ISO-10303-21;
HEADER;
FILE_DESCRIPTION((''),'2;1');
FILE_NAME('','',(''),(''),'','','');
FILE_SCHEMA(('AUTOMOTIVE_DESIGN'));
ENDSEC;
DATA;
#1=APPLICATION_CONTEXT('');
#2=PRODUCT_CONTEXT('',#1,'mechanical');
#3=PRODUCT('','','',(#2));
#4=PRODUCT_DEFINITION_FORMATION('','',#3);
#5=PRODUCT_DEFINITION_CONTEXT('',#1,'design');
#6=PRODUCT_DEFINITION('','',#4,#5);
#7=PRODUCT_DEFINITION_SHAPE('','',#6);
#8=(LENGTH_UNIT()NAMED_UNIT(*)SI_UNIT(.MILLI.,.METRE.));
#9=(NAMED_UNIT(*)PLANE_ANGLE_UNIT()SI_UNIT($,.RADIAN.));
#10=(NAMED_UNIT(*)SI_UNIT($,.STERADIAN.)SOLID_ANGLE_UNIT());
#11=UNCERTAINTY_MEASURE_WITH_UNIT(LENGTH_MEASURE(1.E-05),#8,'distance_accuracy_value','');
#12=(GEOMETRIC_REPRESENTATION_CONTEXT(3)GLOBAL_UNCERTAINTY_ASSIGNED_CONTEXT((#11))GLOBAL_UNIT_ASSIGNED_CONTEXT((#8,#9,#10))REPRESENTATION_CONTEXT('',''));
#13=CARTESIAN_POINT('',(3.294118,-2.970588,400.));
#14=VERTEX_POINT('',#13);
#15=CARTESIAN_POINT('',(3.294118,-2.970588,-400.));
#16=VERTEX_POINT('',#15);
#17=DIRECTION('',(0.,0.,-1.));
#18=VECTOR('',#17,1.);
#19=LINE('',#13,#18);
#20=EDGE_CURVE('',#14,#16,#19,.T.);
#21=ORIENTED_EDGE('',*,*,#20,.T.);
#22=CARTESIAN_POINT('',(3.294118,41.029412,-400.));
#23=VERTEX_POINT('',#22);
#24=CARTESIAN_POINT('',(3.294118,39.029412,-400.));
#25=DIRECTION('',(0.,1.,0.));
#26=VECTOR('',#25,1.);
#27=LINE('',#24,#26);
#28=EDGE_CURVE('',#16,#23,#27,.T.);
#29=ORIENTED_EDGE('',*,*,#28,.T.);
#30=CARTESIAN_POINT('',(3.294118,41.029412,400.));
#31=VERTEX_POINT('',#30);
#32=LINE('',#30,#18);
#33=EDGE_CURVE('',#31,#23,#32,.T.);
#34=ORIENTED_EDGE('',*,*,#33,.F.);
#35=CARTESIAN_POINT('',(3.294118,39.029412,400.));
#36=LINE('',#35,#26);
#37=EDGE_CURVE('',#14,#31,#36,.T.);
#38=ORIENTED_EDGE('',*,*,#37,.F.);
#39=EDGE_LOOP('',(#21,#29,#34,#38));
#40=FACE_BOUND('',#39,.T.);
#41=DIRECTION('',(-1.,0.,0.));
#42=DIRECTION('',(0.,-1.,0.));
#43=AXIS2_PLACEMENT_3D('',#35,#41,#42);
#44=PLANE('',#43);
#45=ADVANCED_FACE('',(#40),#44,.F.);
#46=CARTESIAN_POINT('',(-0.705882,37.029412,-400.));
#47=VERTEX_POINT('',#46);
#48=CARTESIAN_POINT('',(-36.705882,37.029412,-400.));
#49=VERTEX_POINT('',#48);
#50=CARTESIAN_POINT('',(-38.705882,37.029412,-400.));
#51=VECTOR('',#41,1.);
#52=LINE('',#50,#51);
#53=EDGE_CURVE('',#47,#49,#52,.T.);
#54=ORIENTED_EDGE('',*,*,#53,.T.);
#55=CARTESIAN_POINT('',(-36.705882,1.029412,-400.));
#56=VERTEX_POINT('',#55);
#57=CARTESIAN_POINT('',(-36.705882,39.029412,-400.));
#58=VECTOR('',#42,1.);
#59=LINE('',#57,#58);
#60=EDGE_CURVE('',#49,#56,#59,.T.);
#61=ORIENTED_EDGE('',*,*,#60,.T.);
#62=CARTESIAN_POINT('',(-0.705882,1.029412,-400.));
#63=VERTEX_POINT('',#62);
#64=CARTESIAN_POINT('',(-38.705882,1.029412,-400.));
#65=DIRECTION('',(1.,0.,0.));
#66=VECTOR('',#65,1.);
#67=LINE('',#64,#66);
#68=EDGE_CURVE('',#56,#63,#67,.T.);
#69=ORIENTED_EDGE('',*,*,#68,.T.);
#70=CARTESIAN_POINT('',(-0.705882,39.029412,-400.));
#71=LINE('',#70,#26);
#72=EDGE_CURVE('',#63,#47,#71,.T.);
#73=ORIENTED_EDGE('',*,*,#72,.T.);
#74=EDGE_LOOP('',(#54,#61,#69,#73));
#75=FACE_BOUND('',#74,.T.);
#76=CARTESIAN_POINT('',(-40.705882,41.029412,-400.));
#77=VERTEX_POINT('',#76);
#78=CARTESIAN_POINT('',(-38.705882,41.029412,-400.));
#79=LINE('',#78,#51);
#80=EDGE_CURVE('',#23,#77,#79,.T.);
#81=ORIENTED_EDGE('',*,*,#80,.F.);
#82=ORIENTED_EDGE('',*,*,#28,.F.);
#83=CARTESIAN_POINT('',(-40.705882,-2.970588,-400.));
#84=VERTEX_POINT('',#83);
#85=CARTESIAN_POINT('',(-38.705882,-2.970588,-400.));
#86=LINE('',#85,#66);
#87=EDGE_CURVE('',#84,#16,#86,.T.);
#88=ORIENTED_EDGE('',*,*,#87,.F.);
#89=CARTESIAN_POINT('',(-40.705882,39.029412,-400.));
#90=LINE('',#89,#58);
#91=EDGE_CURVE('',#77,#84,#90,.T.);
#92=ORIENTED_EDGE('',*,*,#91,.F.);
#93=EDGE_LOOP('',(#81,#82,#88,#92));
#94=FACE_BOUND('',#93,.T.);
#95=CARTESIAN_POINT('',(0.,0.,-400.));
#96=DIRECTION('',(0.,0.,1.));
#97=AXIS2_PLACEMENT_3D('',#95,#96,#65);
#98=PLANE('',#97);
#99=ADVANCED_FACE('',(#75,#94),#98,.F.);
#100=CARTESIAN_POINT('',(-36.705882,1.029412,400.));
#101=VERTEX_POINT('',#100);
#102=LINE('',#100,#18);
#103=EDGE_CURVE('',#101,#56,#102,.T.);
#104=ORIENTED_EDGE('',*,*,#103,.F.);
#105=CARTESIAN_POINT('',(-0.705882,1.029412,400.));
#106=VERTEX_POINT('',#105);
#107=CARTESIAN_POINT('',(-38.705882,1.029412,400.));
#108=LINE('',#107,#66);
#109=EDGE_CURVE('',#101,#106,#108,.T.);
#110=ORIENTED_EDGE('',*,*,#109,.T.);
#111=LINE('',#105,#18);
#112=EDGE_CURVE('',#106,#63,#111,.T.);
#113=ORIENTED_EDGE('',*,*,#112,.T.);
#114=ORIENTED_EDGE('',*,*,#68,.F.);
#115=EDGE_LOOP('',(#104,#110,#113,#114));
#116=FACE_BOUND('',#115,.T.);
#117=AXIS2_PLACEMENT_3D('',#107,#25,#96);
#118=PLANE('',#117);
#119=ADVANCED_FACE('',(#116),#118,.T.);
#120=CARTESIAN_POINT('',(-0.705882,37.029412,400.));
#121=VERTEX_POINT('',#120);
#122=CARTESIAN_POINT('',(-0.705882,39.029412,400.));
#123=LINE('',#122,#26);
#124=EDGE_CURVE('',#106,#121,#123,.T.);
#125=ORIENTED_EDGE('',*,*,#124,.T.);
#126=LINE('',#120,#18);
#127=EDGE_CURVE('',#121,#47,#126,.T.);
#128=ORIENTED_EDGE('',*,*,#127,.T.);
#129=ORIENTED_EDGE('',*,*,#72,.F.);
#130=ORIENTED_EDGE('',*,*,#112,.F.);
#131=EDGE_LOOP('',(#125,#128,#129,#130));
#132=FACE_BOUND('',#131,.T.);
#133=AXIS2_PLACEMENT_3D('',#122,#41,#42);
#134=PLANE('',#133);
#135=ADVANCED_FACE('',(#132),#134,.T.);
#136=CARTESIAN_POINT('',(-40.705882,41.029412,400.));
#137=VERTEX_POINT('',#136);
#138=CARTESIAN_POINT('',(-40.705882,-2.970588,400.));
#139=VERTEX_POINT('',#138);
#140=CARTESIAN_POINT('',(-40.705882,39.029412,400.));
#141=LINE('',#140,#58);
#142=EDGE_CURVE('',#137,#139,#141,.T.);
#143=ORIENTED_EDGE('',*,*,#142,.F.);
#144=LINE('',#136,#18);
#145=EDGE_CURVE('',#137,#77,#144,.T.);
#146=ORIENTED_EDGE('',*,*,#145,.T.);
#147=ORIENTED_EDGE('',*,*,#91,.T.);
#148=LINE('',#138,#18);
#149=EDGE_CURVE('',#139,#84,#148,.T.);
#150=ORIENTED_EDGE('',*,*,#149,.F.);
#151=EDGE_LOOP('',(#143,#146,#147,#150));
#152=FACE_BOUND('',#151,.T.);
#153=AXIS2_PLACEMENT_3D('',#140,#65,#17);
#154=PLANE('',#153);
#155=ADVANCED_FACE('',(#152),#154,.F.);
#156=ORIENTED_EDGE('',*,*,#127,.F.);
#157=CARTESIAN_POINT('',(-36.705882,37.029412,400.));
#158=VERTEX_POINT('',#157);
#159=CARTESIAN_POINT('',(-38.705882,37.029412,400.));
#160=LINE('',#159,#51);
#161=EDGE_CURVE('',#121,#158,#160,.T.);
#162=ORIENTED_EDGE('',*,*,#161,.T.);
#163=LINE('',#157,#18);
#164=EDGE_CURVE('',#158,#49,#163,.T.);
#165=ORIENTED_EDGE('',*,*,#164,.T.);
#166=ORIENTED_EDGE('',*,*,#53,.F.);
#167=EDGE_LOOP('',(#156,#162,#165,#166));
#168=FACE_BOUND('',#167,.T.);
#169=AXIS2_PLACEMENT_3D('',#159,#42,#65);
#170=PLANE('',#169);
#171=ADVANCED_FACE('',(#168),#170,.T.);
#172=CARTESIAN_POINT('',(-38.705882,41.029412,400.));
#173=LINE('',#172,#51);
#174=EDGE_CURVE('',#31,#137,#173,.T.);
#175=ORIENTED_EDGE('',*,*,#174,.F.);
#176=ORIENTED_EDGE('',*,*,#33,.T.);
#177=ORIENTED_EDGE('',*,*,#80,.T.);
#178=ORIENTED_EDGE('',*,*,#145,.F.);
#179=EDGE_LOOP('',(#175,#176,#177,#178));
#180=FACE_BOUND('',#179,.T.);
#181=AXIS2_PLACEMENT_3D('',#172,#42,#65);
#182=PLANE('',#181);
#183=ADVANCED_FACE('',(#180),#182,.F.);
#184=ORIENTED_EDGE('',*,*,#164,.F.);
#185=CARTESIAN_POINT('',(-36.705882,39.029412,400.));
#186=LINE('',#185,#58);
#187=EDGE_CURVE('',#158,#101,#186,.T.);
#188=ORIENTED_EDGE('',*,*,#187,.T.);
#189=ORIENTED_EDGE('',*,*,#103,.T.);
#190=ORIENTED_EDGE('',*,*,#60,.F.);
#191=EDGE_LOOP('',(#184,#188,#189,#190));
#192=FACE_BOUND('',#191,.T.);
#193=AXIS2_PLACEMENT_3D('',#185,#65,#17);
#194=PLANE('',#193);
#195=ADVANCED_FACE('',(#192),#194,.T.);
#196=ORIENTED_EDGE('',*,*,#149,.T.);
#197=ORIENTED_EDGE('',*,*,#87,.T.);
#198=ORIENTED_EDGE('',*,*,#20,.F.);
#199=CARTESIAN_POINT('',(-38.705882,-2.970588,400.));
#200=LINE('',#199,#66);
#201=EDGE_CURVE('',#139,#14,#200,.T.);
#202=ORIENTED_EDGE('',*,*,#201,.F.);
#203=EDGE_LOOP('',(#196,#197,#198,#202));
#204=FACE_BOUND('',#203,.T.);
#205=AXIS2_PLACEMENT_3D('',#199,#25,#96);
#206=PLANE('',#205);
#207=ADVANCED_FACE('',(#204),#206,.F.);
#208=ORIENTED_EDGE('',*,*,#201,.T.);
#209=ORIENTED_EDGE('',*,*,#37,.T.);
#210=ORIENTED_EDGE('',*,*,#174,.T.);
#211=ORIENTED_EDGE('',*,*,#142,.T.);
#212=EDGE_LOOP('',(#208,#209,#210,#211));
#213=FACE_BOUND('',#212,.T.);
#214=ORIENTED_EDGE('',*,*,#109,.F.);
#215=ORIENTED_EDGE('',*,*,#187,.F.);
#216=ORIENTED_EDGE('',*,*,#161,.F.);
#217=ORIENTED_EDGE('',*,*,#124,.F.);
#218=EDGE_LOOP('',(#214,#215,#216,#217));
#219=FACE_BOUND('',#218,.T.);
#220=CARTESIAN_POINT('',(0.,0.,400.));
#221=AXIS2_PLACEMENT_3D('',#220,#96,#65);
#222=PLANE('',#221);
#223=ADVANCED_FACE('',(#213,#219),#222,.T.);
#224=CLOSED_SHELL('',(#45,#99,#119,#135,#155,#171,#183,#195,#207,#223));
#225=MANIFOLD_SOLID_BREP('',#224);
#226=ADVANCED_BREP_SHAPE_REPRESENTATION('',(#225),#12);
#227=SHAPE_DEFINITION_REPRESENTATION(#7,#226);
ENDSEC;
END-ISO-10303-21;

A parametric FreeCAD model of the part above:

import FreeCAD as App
import Part
import Sketcher

V = App.Vector
Q = App.Units.Quantity

doc = App.newDocument("Part")
body = doc.addObject("PartDesign::Body", "Body")

sketch1 = body.newObject("Sketcher::SketchObject", "Sketch")
sketch1.AttachmentSupport = (doc.getObject("XY_Plane"), [""])
sketch1.MapMode = "FlatFace"
sketch1.addGeometry([
    Part.LineSegment(V(-41, 41, 0), V(-41, -3, 0)),
    Part.LineSegment(V(-41, -3, 0), V(3, -3, 0)),
    Part.LineSegment(V(3, -3, 0), V(3, 41, 0)),
    Part.LineSegment(V(3, 41, 0), V(-41, 41, 0)),
    Part.LineSegment(V(-1, 1, 0), V(-37, 1, 0)),
    Part.LineSegment(V(-37, 1, 0), V(-37, 37, 0)),
    Part.LineSegment(V(-37, 37, 0), V(-1, 37, 0)),
    Part.LineSegment(V(-1, 37, 0), V(-1, 1, 0)),
], False)
sketch1.addConstraint([
    Sketcher.Constraint("Coincident", 0, 2, 1, 1),
    Sketcher.Constraint("Coincident", 1, 2, 2, 1),
    Sketcher.Constraint("Coincident", 2, 2, 3, 1),
    Sketcher.Constraint("Coincident", 3, 2, 0, 1),
    Sketcher.Constraint("Coincident", 4, 2, 5, 1),
    Sketcher.Constraint("Coincident", 5, 2, 6, 1),
    Sketcher.Constraint("Coincident", 6, 2, 7, 1),
    Sketcher.Constraint("Coincident", 7, 2, 4, 1),
    Sketcher.Constraint("Vertical", 0),
    Sketcher.Constraint("Horizontal", 1),
    Sketcher.Constraint("Vertical", 2),
    Sketcher.Constraint("Horizontal", 3),
    Sketcher.Constraint("Horizontal", 4),
    Sketcher.Constraint("Vertical", 5),
    Sketcher.Constraint("Horizontal", 6),
    Sketcher.Constraint("Vertical", 7),
    Sketcher.Constraint("Equal", 3, 0),
    Sketcher.Constraint("Equal", 6, 5),
    Sketcher.Constraint("DistanceX", 1, 1, 1, 2, Q("44 mm")),
    Sketcher.Constraint("DistanceX", 4, 2, 4, 1, Q("36 mm")),
    Sketcher.Constraint("DistanceX", 0, 2, 4, 2, Q("4 mm")),
    Sketcher.Constraint("DistanceY", 0, 2, 4, 2, Q("4 mm")),
    Sketcher.Constraint("DistanceY", 0, 2, -1, 1, Q("2.970588 mm")),
    Sketcher.Constraint("DistanceX", 0, 2, -1, 1, Q("40.705882 mm")),
])
pad1 = body.newObject("PartDesign::Pad", "Pad")
pad1.Profile = sketch1
pad1.Length = 800
pad1.Midplane = True

doc.recompute()
